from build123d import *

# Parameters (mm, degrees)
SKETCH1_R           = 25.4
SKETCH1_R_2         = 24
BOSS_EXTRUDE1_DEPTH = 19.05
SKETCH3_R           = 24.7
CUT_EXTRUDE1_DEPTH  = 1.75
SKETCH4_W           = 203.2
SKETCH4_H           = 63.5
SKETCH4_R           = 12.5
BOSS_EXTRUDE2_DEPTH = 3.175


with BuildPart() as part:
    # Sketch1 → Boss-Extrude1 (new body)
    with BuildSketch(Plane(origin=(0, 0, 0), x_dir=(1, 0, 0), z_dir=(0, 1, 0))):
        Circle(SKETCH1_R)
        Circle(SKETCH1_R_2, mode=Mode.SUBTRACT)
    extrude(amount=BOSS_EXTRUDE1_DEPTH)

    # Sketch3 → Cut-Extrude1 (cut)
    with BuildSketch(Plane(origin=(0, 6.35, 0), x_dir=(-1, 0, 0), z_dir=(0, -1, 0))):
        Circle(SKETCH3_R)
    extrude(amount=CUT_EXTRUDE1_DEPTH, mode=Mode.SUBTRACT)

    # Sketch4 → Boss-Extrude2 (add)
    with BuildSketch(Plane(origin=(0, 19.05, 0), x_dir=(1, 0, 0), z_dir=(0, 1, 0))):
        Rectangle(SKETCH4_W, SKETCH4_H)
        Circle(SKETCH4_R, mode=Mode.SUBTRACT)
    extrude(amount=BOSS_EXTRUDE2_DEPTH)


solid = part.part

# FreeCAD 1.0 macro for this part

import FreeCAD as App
import Part
import Sketcher
from FreeCAD import Vector
Q = App.Units.Quantity

doc = App.newDocument("Part")
body = doc.addObject("PartDesign::Body", "Body")

# Sketch on XZ plane
sketch1 = body.newObject("Sketcher::SketchObject", "Sketch")
sketch1.AttachmentSupport = (doc.getObject("XZ_Plane"), [""])
sketch1.MapMode = "FlatFace"
sketch1.addGeometry(Part.Circle(Vector(0, 0, 0), Vector(0, 0, 1), 25), False)
sketch1.addGeometry(Part.Circle(Vector(0, 0, 0), Vector(0, 0, 1), 24), False)
sketch1.addConstraint(Sketcher.Constraint("Coincident", 0, 3, -1, 1))
sketch1.addConstraint(Sketcher.Constraint("Coincident", 1, 3, -1, 1))
sketch1.addConstraint(Sketcher.Constraint("Diameter", 0, Q("2 in")))
sketch1.addConstraint(Sketcher.Constraint("Diameter", 1, 48.0))
pad1 = body.newObject("PartDesign::Pad", "Pad")
pad1.Profile = sketch1
pad1.Length = Q("0.75 in")
pad1.Reversed = True

# Sketch on XZ plane
sketch2 = body.newObject("Sketcher::SketchObject", "Sketch001")
sketch2.AttachmentSupport = (doc.getObject("XZ_Plane"), [""])
sketch2.MapMode = "FlatFace"
sketch2.AttachmentOffset = App.Placement(Vector(0, 0, -0.25 * 25.4), App.Rotation())
sketch2.addGeometry(Part.Circle(Vector(0, 0, 0), Vector(0, 0, 1), 25), False)
sketch2.addConstraint(Sketcher.Constraint("Coincident", 0, 3, -1, 1))
sketch2.addConstraint(Sketcher.Constraint("Diameter", 0, 49.4))
pocket1 = body.newObject("PartDesign::Pocket", "Pocket")
pocket1.Profile = sketch2
pocket1.Length = 1.75
pocket1.Reversed = True

# Sketch on XZ plane
sketch3 = body.newObject("Sketcher::SketchObject", "Sketch002")
sketch3.AttachmentSupport = (doc.getObject("XZ_Plane"), [""])
sketch3.MapMode = "FlatFace"
sketch3.AttachmentOffset = App.Placement(Vector(0, 0, -0.75 * 25.4), App.Rotation())
sketch3.addGeometry(Part.LineSegment(Vector(-102, -32, 0), Vector(-102, 32, 0)), False)
sketch3.addGeometry(Part.LineSegment(Vector(-102, 32, 0), Vector(102, 32, 0)), False)
sketch3.addGeometry(Part.LineSegment(Vector(102, 32, 0), Vector(102, -32, 0)), False)
sketch3.addGeometry(Part.LineSegment(Vector(102, -32, 0), Vector(-102, -32, 0)), False)
sketch3.addGeometry(Part.Circle(Vector(0, 0, 0), Vector(0, 0, 1), 12), False)
sketch3.addConstraint(Sketcher.Constraint("Coincident", 0, 2, 1, 1))
sketch3.addConstraint(Sketcher.Constraint("Coincident", 1, 2, 2, 1))
sketch3.addConstraint(Sketcher.Constraint("Coincident", 2, 2, 3, 1))
sketch3.addConstraint(Sketcher.Constraint("Coincident", 3, 2, 0, 1))
sketch3.addConstraint(Sketcher.Constraint("Vertical", 0))
sketch3.addConstraint(Sketcher.Constraint("Horizontal", 1))
sketch3.addConstraint(Sketcher.Constraint("Vertical", 2))
sketch3.addConstraint(Sketcher.Constraint("Horizontal", 3))
sketch3.addConstraint(Sketcher.Constraint("Coincident", 4, 3, -1, 1))
sketch3.addConstraint(Sketcher.Constraint("Symmetric", 0, 2, 2, 2, -1, 1))
sketch3.addConstraint(Sketcher.Constraint("DistanceX", 1, 1, 1, 2, Q("8 in")))
sketch3.addConstraint(Sketcher.Constraint("DistanceY", 0, 1, 0, 2, Q("2.5 in")))
sketch3.addConstraint(Sketcher.Constraint("Diameter", 4, 25.0))
pad2 = body.newObject("PartDesign::Pad", "Pad001")
pad2.Profile = sketch3
pad2.Length = Q("0.125 in")
pad2.Reversed = True

doc.recompute()
